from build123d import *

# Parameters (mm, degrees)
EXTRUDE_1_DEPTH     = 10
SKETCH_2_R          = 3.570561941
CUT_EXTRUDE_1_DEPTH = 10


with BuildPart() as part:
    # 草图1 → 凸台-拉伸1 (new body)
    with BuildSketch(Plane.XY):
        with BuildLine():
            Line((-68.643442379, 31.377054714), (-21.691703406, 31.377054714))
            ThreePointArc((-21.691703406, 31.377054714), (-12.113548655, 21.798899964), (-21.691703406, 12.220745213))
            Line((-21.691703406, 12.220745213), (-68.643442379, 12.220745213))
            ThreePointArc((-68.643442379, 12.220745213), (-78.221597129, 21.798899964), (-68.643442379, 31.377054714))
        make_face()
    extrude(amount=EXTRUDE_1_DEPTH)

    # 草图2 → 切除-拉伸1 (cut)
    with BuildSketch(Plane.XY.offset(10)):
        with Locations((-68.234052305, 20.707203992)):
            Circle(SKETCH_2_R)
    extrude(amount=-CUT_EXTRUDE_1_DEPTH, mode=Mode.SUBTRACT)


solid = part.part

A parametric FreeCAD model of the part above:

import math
import FreeCAD as App
import Part
import Sketcher

V = App.Vector

doc = App.newDocument("Part")
body = doc.addObject("PartDesign::Body", "Body")

sketch1 = body.newObject("Sketcher::SketchObject", "Sketch")
sketch1.AttachmentSupport = (doc.getObject("XY_Plane"), [""])
sketch1.MapMode = "FlatFace"
sketch1.addGeometry([
    Part.LineSegment(V(-22, 31, 0), V(-69, 31, 0)),
    Part.ArcOfCircle(Part.Circle(V(-69, 22, 0), V(0, 0, 1), 10), math.radians(90), math.radians(270)),
    Part.LineSegment(V(-69, 12, 0), V(-22, 12, 0)),
    Part.ArcOfCircle(Part.Circle(V(-22, 22, 0), V(0, 0, 1), 10), math.radians(-90), math.radians(90)),
], False)
sketch1.addConstraint([
    Sketcher.Constraint("Tangent", 0, 2, 1, 1),
    Sketcher.Constraint("Tangent", 1, 2, 2, 1),
    Sketcher.Constraint("Tangent", 2, 2, 3, 1),
    Sketcher.Constraint("Tangent", 3, 2, 0, 1),
    Sketcher.Constraint("Horizontal", 0),
    Sketcher.Constraint("Horizontal", 2),
    Sketcher.Constraint("Radius", 1, 9.578155),
    Sketcher.Constraint("DistanceX", 0, 2, 0, 1, 46.951739),
    Sketcher.Constraint("DistanceY", -1, 1, 1, 3, 21.7989),
    Sketcher.Constraint("DistanceX", 1, 3, -1, 1, 68.643442),
])
pad1 = body.newObject("PartDesign::Pad", "Pad")
pad1.Profile = sketch1
pad1.Length = 10

sketch2 = body.newObject("Sketcher::SketchObject", "Sketch001")
sketch2.AttachmentSupport = (doc.getObject("XY_Plane"), [""])
sketch2.MapMode = "FlatFace"
sketch2.AttachmentOffset = App.Placement(V(0, 0, 10), App.Rotation())
sketch2.addGeometry(Part.Circle(V(-68.2, 20.7, 0), V(0, 0, 1), 3.6), False)
sketch2.addConstraint([
    Sketcher.Constraint("Diameter", 0, 7.141124),
    Sketcher.Constraint("DistanceX", 0, 3, -1, 1, 68.234052),
    Sketcher.Constraint("DistanceY", -1, 1, 0, 3, 20.707204),
])
pocket1 = body.newObject("PartDesign::Pocket", "Pocket")
pocket1.Profile = sketch2
pocket1.Length = 10

doc.recompute()
